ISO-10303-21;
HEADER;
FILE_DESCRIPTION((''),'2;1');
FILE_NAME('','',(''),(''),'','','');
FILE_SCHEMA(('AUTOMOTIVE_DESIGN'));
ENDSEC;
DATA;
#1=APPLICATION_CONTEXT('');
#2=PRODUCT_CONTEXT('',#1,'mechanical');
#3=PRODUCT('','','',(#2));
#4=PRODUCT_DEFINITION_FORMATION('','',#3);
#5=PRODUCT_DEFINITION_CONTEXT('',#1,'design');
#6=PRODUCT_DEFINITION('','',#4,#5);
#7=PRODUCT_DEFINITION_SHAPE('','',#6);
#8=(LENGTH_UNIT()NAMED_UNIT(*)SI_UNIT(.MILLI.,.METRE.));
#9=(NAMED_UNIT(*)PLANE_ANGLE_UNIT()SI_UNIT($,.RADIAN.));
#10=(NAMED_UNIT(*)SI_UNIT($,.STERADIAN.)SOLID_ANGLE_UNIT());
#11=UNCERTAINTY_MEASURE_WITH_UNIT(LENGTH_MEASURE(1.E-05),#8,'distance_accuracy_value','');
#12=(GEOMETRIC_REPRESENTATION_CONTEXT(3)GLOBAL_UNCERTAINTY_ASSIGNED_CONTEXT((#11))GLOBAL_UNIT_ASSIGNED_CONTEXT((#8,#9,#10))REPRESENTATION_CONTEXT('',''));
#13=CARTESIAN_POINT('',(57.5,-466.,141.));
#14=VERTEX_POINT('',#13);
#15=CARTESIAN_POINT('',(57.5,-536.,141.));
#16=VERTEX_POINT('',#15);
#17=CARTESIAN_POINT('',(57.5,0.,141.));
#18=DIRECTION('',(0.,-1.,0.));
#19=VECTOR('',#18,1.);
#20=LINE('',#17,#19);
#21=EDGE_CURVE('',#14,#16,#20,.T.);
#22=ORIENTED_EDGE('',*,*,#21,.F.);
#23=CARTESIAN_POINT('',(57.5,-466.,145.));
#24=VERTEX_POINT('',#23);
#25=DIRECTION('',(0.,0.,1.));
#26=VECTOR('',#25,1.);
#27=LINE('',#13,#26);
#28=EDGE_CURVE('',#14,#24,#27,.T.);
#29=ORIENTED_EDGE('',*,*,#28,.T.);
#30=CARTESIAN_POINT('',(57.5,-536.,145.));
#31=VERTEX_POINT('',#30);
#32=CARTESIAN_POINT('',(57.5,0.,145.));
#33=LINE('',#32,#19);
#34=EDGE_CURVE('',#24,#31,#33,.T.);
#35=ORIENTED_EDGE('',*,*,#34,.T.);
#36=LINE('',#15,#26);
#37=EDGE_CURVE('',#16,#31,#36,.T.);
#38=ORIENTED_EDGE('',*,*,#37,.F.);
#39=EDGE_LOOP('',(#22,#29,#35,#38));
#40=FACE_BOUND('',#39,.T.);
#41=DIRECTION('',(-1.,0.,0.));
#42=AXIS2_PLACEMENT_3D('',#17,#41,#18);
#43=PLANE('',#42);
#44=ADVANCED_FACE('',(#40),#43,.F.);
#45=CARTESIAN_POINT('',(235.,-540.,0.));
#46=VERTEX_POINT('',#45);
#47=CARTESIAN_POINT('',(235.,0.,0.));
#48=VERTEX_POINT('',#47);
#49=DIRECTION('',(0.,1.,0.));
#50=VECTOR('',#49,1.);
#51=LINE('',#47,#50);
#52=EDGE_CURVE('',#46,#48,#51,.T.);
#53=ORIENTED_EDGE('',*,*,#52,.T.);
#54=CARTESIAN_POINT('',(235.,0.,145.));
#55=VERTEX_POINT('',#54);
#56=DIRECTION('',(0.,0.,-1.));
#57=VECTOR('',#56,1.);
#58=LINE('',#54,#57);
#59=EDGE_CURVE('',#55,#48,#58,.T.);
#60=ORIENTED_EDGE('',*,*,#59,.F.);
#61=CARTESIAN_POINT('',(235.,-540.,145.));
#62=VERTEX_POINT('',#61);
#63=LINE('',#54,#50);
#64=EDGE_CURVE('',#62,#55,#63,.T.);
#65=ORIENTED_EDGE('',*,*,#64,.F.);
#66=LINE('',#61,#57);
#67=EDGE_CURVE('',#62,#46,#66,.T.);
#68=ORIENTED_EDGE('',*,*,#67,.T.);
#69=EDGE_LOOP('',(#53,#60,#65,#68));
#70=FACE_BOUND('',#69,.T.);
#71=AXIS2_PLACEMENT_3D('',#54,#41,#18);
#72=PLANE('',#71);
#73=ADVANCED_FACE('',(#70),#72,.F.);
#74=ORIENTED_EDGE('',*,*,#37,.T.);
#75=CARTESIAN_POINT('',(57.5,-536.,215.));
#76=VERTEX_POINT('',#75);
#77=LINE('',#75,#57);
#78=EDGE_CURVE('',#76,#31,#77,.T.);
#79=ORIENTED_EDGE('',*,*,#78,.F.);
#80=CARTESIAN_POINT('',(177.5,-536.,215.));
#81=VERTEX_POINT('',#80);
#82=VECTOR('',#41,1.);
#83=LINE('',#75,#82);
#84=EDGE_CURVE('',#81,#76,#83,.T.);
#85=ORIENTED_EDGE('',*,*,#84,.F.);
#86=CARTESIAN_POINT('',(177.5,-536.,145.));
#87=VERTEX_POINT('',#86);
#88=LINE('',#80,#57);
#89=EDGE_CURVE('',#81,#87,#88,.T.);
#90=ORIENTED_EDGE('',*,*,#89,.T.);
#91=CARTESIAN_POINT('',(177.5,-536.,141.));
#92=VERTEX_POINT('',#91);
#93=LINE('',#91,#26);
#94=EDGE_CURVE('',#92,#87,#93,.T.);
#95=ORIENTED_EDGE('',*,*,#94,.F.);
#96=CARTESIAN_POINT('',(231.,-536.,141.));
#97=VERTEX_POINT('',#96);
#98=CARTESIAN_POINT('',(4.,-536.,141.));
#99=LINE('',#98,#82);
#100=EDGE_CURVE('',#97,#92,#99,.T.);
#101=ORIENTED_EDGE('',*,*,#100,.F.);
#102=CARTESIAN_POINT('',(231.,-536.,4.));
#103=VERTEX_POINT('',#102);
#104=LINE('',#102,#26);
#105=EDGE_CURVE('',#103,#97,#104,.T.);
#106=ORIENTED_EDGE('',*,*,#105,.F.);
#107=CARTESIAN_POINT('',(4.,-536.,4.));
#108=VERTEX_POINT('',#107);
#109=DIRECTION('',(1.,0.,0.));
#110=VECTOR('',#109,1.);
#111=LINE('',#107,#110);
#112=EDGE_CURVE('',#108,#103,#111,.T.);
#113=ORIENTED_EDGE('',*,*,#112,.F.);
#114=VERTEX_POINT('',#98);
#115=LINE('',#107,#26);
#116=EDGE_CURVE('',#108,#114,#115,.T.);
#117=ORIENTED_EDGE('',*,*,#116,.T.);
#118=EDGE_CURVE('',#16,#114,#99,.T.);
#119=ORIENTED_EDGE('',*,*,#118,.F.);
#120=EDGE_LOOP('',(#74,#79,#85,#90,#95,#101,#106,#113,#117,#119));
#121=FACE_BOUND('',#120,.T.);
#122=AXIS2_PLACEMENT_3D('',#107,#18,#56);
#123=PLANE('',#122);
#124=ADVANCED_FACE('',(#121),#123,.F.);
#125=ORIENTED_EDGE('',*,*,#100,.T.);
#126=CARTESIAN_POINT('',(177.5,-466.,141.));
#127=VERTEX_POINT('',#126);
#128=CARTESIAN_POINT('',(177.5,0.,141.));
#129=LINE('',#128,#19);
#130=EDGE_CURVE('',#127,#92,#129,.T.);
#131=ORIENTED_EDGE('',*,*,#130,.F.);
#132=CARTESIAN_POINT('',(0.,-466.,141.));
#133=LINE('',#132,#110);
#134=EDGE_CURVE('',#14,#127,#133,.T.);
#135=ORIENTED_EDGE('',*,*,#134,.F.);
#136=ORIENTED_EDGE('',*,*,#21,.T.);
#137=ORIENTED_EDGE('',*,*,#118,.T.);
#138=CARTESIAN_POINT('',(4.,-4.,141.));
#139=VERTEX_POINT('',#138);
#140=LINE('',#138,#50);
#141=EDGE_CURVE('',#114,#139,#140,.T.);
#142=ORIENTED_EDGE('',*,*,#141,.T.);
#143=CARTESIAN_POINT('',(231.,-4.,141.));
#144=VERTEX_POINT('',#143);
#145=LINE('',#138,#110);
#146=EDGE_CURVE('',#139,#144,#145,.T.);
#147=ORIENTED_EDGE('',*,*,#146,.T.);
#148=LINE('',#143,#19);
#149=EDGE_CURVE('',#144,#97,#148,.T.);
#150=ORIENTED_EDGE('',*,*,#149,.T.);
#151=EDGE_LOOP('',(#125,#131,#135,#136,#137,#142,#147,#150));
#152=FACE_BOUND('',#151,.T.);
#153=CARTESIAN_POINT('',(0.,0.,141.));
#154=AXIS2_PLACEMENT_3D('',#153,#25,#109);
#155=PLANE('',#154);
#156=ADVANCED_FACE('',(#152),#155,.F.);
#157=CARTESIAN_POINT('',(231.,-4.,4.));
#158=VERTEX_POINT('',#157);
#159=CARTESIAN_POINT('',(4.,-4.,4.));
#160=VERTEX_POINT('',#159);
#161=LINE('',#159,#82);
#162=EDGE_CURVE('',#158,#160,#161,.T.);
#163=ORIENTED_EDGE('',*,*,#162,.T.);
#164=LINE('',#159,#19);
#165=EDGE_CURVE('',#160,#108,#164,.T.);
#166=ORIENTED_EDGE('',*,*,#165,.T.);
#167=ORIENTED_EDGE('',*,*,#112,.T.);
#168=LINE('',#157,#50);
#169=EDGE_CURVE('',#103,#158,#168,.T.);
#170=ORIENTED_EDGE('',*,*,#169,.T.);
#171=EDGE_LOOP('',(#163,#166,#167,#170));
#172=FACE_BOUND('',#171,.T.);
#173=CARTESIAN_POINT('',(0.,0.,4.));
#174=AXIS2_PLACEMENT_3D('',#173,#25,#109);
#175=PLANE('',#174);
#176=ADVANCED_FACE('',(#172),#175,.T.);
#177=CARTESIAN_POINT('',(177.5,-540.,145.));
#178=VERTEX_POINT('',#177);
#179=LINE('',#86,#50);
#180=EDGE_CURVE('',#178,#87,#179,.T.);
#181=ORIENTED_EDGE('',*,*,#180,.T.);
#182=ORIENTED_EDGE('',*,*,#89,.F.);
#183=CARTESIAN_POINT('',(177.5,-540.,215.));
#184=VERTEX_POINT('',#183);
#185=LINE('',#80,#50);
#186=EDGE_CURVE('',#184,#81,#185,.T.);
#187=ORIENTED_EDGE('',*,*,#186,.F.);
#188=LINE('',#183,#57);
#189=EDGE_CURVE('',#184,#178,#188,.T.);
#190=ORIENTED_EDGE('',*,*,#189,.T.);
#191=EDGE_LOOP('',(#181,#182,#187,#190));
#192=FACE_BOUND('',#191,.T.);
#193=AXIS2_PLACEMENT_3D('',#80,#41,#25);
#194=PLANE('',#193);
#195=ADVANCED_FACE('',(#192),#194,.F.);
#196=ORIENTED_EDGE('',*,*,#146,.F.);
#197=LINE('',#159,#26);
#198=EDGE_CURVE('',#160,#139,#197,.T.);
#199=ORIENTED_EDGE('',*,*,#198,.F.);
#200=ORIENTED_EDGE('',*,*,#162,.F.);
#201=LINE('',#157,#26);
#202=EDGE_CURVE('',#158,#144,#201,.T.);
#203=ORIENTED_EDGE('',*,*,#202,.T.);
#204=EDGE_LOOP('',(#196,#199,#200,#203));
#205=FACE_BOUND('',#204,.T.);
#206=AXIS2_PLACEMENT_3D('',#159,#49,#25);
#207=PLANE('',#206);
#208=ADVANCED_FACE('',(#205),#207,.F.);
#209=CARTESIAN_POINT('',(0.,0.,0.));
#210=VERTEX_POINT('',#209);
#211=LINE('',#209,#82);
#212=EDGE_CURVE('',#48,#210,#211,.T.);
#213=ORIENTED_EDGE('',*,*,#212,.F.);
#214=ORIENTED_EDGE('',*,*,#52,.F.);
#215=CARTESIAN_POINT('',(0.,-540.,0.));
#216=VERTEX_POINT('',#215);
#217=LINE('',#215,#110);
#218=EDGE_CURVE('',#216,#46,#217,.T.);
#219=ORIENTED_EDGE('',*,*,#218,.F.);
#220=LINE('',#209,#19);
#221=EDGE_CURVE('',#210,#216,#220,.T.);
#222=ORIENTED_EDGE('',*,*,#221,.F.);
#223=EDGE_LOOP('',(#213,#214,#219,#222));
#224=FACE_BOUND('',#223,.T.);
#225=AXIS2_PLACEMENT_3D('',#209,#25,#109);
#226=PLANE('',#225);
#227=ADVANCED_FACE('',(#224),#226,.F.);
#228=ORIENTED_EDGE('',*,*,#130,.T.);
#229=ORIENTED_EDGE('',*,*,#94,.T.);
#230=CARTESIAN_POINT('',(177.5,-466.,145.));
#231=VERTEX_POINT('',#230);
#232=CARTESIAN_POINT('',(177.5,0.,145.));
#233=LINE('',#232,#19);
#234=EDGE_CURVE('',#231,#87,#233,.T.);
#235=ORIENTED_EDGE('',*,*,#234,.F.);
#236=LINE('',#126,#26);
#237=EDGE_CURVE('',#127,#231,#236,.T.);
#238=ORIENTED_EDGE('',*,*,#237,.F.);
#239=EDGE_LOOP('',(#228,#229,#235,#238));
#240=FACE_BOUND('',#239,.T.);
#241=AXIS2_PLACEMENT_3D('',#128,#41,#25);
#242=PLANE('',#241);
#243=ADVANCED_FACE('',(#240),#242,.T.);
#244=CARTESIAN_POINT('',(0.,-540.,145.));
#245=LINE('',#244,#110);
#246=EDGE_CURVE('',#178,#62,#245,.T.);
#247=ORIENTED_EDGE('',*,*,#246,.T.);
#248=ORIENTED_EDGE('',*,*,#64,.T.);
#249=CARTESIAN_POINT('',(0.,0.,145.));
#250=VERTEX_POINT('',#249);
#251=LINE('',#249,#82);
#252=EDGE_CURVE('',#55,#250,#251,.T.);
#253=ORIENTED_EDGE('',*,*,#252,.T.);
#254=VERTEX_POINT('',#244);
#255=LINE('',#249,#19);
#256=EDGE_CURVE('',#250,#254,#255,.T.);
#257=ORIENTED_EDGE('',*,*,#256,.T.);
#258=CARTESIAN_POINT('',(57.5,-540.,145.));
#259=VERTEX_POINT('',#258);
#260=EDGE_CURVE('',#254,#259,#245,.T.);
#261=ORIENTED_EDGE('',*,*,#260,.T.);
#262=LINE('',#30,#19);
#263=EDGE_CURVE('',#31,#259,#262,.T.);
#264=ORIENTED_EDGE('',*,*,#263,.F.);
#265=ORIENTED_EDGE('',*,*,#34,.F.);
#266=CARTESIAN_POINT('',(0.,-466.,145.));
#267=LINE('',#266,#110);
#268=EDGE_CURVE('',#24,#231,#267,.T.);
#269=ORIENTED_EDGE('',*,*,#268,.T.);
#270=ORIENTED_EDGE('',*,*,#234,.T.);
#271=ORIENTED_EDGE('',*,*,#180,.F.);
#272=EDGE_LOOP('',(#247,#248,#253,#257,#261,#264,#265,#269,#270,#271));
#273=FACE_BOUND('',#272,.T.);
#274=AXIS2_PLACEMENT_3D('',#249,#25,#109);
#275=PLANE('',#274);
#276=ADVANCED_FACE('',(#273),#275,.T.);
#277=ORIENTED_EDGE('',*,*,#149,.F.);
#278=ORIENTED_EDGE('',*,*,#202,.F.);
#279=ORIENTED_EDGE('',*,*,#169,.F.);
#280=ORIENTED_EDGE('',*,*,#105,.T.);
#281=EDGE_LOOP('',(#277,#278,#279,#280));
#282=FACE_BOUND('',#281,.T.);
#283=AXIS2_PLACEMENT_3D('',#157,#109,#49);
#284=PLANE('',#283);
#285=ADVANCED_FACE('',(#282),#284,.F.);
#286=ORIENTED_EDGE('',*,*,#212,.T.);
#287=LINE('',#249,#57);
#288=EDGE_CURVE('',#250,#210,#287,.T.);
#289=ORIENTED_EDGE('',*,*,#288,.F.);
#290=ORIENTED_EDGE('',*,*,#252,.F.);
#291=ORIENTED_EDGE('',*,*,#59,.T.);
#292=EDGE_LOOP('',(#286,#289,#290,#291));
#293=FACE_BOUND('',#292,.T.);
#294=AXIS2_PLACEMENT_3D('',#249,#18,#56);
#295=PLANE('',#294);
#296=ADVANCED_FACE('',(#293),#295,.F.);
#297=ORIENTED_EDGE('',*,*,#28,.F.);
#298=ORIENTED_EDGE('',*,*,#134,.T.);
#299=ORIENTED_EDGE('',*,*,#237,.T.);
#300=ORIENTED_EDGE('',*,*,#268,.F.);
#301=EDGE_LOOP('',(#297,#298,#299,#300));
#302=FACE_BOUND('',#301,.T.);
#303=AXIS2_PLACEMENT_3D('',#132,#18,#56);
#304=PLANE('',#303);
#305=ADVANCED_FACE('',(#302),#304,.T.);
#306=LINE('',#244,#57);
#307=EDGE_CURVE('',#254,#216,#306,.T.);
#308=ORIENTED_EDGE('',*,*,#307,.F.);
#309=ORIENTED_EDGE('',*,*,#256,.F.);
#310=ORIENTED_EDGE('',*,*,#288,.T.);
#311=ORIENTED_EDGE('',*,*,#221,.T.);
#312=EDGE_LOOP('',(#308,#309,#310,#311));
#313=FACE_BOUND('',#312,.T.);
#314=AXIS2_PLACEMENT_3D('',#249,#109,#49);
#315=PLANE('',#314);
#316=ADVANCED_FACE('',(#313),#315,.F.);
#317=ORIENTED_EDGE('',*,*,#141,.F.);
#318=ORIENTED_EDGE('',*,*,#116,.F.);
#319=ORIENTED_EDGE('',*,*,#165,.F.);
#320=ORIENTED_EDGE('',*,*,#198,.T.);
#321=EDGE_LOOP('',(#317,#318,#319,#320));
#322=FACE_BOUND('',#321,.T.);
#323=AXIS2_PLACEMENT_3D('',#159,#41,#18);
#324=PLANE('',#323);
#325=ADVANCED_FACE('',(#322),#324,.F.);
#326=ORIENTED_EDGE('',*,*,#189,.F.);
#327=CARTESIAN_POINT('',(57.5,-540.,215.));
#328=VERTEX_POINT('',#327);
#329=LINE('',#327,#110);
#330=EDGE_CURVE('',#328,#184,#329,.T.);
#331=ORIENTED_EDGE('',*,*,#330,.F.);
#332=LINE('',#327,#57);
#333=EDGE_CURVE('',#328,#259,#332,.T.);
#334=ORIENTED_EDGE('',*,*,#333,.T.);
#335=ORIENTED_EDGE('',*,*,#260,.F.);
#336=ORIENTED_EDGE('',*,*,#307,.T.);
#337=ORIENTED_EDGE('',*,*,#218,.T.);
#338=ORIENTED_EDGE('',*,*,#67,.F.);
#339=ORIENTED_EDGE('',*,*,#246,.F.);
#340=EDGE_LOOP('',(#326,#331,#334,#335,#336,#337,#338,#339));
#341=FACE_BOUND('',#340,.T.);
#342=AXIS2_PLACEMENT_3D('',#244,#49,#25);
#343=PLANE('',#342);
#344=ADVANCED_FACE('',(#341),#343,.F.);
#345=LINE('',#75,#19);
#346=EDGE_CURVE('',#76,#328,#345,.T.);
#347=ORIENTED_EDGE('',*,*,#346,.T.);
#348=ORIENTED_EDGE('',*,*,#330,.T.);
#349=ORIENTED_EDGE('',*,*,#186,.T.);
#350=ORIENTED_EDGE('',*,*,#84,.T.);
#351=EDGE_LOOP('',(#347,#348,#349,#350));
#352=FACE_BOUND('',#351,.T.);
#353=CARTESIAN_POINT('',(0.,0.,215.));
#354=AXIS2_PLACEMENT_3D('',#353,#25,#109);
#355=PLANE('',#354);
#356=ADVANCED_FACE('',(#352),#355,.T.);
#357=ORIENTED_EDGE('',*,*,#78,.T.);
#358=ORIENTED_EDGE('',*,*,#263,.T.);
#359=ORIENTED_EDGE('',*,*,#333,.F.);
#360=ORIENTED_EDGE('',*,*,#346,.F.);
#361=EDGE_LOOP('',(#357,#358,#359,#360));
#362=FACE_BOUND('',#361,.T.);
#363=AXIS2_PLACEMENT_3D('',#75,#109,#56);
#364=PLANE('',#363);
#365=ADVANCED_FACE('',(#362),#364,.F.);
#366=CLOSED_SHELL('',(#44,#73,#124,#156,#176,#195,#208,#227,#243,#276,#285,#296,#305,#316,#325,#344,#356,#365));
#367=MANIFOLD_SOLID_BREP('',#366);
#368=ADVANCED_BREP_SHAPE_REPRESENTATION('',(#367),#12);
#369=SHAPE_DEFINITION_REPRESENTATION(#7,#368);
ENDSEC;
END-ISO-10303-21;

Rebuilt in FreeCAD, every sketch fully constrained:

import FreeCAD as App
import Part
import Sketcher

V = App.Vector
Q = App.Units.Quantity


def add_polygon(sketch, points):
    """Adds a closed chain of lines whose ends are joined by coincident constraints."""
    first, n = sketch.GeometryCount, len(points)
    for a, b in zip(points, points[1:] + points[:1]):
        sketch.addGeometry(Part.LineSegment(App.Vector(*a, 0), App.Vector(*b, 0)), False)
    for i in range(n):
        sketch.addConstraint(Sketcher.Constraint("Coincident", first + i, 2, first + (i + 1) % n, 1))

doc = App.newDocument("Part")
body = doc.addObject("PartDesign::Body", "Body")

sketch1 = body.newObject("Sketcher::SketchObject", "Sketch")
sketch1.AttachmentSupport = (doc.getObject("XY_Plane"), [""])
sketch1.MapMode = "FlatFace"
add_polygon(sketch1, [(0, 0), (0, -540), (235, -540), (235, 0)])
sketch1.addConstraint([
    Sketcher.Constraint("Vertical", 0),
    Sketcher.Constraint("Horizontal", 1),
    Sketcher.Constraint("Vertical", 2),
    Sketcher.Constraint("Horizontal", 3),
    Sketcher.Constraint("Coincident", 3, 2, -1, 1),
    Sketcher.Constraint("DistanceX", 1, 1, 1, 2, Q("235 mm")),
    Sketcher.Constraint("DistanceY", 0, 2, 0, 1, Q("540 mm")),
])
pad1 = body.newObject("PartDesign::Pad", "Pad")
pad1.Profile = sketch1
pad1.Length = 145

sketch2 = body.newObject("Sketcher::SketchObject", "Sketch001")
sketch2.AttachmentSupport = (doc.getObject("XY_Plane"), [""])
sketch2.MapMode = "FlatFace"
sketch2.AttachmentOffset = App.Placement(V(0, 0, 145), App.Rotation())
add_polygon(sketch2, [(4, -4), (4, -536), (231, -536), (231, -4)])
sketch2.addConstraint([
    Sketcher.Constraint("Vertical", 0),
    Sketcher.Constraint("Horizontal", 1),
    Sketcher.Constraint("Vertical", 2),
    Sketcher.Constraint("Horizontal", 3),
    Sketcher.Constraint("DistanceX", 1, 1, 1, 2, Q("227 mm")),
    Sketcher.Constraint("DistanceY", 0, 2, 0, 1, Q("532 mm")),
    Sketcher.Constraint("DistanceX", -1, 1, 0, 2, Q("4 mm")),
    Sketcher.Constraint("DistanceY", 0, 2, -1, 1, Q("536 mm")),
])
pocket1 = body.newObject("PartDesign::Pocket", "Pocket")
pocket1.Profile = sketch2
pocket1.Length = 141

sketch3 = body.newObject("Sketcher::SketchObject", "Sketch002")
sketch3.AttachmentSupport = (doc.getObject("XY_Plane"), [""])
sketch3.MapMode = "FlatFace"
sketch3.AttachmentOffset = App.Placement(V(0, 0, 145), App.Rotation())
add_polygon(sketch3, [(0, 0), (0, -540), (235, -540), (235, 0)])
sketch3.addConstraint([
    Sketcher.Constraint("Vertical", 0),
    Sketcher.Constraint("Horizontal", 1),
    Sketcher.Constraint("Vertical", 2),
    Sketcher.Constraint("Horizontal", 3),
    Sketcher.Constraint("Coincident", 3, 2, -1, 1),
    Sketcher.Constraint("DistanceX", 1, 1, 1, 2, Q("235 mm")),
    Sketcher.Constraint("DistanceY", 0, 2, 0, 1, Q("540 mm")),
])
pad2 = body.newObject("PartDesign::Pad", "Pad001")
pad2.Profile = sketch3
pad2.Length = 4
pad2.Reversed = True

sketch4 = body.newObject("Sketcher::SketchObject", "Sketch003")
sketch4.AttachmentSupport = (doc.getObject("XY_Plane"), [""])
sketch4.MapMode = "FlatFace"
sketch4.AttachmentOffset = App.Placement(V(0, 0, 145), App.Rotation())
add_polygon(sketch4, [(58, -466), (58, -536), (178, -536), (178, -466)])
sketch4.addConstraint([
    Sketcher.Constraint("Vertical", 0),
    Sketcher.Constraint("Horizontal", 1),
    Sketcher.Constraint("Vertical", 2),
    Sketcher.Constraint("Horizontal", 3),
    Sketcher.Constraint("DistanceX", 1, 1, 1, 2, Q("120 mm")),
    Sketcher.Constraint("DistanceY", 0, 2, 0, 1, Q("70 mm")),
    Sketcher.Constraint("DistanceY", 0, 2, -1, 1, Q("536 mm")),
    Sketcher.Constraint("DistanceX", -1, 1, 0, 2, Q("57.5 mm")),
])
pocket2 = body.newObject("PartDesign::Pocket", "Pocket001")
pocket2.Profile = sketch4
pocket2.Length = 4

sketch5 = body.newObject("Sketcher::SketchObject", "Sketch004")
sketch5.AttachmentSupport = (doc.getObject("XY_Plane"), [""])
sketch5.MapMode = "FlatFace"
sketch5.AttachmentOffset = App.Placement(V(0, 0, 145), App.Rotation())
add_polygon(sketch5, [(57.5, -536), (57.5, -540), (177.5, -540), (177.5, -536)])
sketch5.addConstraint([
    Sketcher.Constraint("Vertical", 0),
    Sketcher.Constraint("Horizontal", 1),
    Sketcher.Constraint("Vertical", 2),
    Sketcher.Constraint("Horizontal", 3),
    Sketcher.Constraint("DistanceX", 1, 1, 1, 2, Q("120 mm")),
    Sketcher.Constraint("DistanceY", 0, 2, 0, 1, Q("4 mm")),
    Sketcher.Constraint("DistanceY", 0, 2, -1, 1, Q("540 mm")),
    Sketcher.Constraint("DistanceX", -1, 1, 0, 2, Q("57.5 mm")),
])
pad3 = body.newObject("PartDesign::Pad", "Pad002")
pad3.Profile = sketch5
pad3.Length = 70

doc.recompute()
